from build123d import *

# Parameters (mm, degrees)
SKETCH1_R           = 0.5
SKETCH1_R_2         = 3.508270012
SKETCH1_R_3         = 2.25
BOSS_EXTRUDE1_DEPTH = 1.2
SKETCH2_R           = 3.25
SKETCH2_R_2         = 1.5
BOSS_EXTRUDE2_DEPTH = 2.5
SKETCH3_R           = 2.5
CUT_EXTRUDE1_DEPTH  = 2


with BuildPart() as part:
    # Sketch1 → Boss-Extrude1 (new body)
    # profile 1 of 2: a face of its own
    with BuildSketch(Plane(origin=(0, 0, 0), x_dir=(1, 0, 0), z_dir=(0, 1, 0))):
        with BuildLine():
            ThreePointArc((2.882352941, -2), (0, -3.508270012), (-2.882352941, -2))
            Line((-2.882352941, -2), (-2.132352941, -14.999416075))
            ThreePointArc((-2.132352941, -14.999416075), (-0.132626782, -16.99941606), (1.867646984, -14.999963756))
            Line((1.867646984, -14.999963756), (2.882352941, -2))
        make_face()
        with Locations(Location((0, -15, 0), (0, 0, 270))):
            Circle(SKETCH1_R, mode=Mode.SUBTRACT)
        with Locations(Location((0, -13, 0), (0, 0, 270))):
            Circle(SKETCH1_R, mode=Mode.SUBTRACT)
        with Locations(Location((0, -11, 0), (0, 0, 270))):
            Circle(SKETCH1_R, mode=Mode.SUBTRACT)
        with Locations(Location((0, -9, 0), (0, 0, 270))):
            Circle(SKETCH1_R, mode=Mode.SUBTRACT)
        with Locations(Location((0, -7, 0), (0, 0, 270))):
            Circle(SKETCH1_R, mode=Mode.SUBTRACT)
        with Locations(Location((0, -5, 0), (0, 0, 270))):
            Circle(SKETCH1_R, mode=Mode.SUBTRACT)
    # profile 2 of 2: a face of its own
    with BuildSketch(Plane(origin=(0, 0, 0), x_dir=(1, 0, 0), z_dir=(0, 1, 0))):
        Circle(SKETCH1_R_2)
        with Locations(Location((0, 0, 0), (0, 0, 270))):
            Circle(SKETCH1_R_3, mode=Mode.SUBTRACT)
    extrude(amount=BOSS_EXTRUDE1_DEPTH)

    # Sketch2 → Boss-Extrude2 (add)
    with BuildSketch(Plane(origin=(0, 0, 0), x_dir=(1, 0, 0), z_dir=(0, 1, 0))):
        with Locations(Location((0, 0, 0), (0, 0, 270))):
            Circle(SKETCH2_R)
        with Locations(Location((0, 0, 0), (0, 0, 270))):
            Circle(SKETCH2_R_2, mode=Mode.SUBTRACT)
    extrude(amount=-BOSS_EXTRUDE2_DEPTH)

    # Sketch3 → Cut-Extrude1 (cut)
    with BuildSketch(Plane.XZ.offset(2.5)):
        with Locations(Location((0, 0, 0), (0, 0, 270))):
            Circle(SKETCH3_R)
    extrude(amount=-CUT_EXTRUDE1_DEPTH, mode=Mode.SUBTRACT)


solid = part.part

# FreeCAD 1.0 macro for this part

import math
import FreeCAD as App
import Part
import Sketcher
from FreeCAD import Vector

doc = App.newDocument("Part")
body = doc.addObject("PartDesign::Body", "Body")

# Sketch on XZ plane
sketch1 = body.newObject("Sketcher::SketchObject", "Sketch")
sketch1.AttachmentSupport = (doc.getObject("XZ_Plane"), [""])
sketch1.MapMode = "FlatFace"
sketch1.addGeometry([
    Part.LineSegment(Vector(1.867647, 14.999964, 0), Vector(2.882353, 2, 0)),  # 0
    Part.ArcOfCircle(Part.Circle(Vector(0, 0, 0), Vector(0, 0, 1), 3.50827), math.radians(145.244087), math.radians(394.755913)),  # 1
    Part.LineSegment(Vector(-2.882353, 2, 0), Vector(-2.132353, 14.999416, 0)),  # 2
    Part.ArcOfCircle(Part.Circle(Vector(-0.132353, 14.999416, 0), Vector(0, 0, 1), 2), math.radians(0.01569), math.radians(180)),  # 3
    Part.Circle(Vector(0, 15, 0), Vector(0, 0, 1), 0.5),  # 4
    Part.Circle(Vector(0, 13, 0), Vector(0, 0, 1), 0.5),  # 5
    Part.Circle(Vector(0, 11, 0), Vector(0, 0, 1), 0.5),  # 6
    Part.Circle(Vector(0, 9, 0), Vector(0, 0, 1), 0.5),  # 7
    Part.Circle(Vector(0, 7, 0), Vector(0, 0, 1), 0.5),  # 8
    Part.Circle(Vector(0, 5, 0), Vector(0, 0, 1), 0.5),  # 9
    Part.Circle(Vector(0, 0, 0), Vector(0, 0, 1), 2.25),  # 10
], False)
sketch1.addConstraint([
    Sketcher.Constraint("Coincident", 0, 2, 1, 2),
    Sketcher.Constraint("Coincident", 1, 1, 2, 1),
    Sketcher.Constraint("Coincident", 2, 2, 3, 2),
    Sketcher.Constraint("Coincident", 3, 1, 0, 1),
    Sketcher.Constraint("Coincident", 1, 3, -1, 1),
    Sketcher.Constraint("Coincident", 10, 3, -1, 1),
    Sketcher.Constraint("Equal", 4, 5),
    Sketcher.Constraint("Equal", 5, 6),
    Sketcher.Constraint("Equal", 6, 7),
    Sketcher.Constraint("Equal", 7, 8),
    Sketcher.Constraint("Equal", 8, 9),
    Sketcher.Constraint("PointOnObject", 4, 3, -2),
    Sketcher.Constraint("PointOnObject", 5, 3, -2),
    Sketcher.Constraint("PointOnObject", 6, 3, -2),
    Sketcher.Constraint("PointOnObject", 7, 3, -2),
    Sketcher.Constraint("PointOnObject", 8, 3, -2),
    Sketcher.Constraint("PointOnObject", 9, 3, -2),
    Sketcher.Constraint("Horizontal", 0, 2, 1, 1),
    Sketcher.Constraint("Horizontal", 3, 3, 2, 2),
    Sketcher.Constraint("Diameter", 4, 1.0),
    Sketcher.Constraint("Radius", 3, 2.0),
    Sketcher.Constraint("Diameter", 10, 4.5),
    Sketcher.Constraint("DistanceY", -1, 1, 4, 3, 15.0),
    Sketcher.Constraint("DistanceY", -1, 1, 5, 3, 13.0),
    Sketcher.Constraint("DistanceY", -1, 1, 6, 3, 11.0),
    Sketcher.Constraint("DistanceY", -1, 1, 7, 3, 9.0),
    Sketcher.Constraint("DistanceY", -1, 1, 8, 3, 7.0),
    Sketcher.Constraint("DistanceY", -1, 1, 9, 3, 5.0),
    Sketcher.Constraint("DistanceY", -1, 1, 0, 2, 2.0),
    Sketcher.Constraint("Radius", 1, 3.50827),
    Sketcher.Constraint("Distance", 0, 13.039505),
    Sketcher.Constraint("Distance", 2, 13.021034),
    Sketcher.Constraint("DistanceX", 3, 3, -1, 1, 0.132353),
])
pad1 = body.newObject("PartDesign::Pad", "Pad")
pad1.Profile = sketch1
pad1.Length = 1.2
pad1.Reversed = True

# Sketch on XZ plane
sketch2 = body.newObject("Sketcher::SketchObject", "Sketch001")
sketch2.AttachmentSupport = (doc.getObject("XZ_Plane"), [""])
sketch2.MapMode = "FlatFace"
sketch2.addGeometry([
    Part.Circle(Vector(0, 0, 0), Vector(0, 0, 1), 3.25),
    Part.Circle(Vector(0, 0, 0), Vector(0, 0, 1), 1.5),
], False)
sketch2.addConstraint([
    Sketcher.Constraint("Coincident", 0, 3, -1, 1),
    Sketcher.Constraint("Coincident", 1, 3, -1, 1),
    Sketcher.Constraint("Diameter", 1, 3.0),
    Sketcher.Constraint("Diameter", 0, 6.5),
])
pad2 = body.newObject("PartDesign::Pad", "Pad001")
pad2.Profile = sketch2
pad2.Length = 2.5

# Sketch on XZ plane
sketch3 = body.newObject("Sketcher::SketchObject", "Sketch002")
sketch3.AttachmentSupport = (doc.getObject("XZ_Plane"), [""])
sketch3.MapMode = "FlatFace"
sketch3.AttachmentOffset = App.Placement(Vector(0, 0, 2.5), App.Rotation())
sketch3.addGeometry(Part.Circle(Vector(0, 0, 0), Vector(0, 0, 1), 2.5), False)
sketch3.addConstraint([
    Sketcher.Constraint("Coincident", 0, 3, -1, 1),
    Sketcher.Constraint("Diameter", 0, 5.0),
])
pocket1 = body.newObject("PartDesign::Pocket", "Pocket")
pocket1.Profile = sketch3
pocket1.Length = 2

doc.recompute()
